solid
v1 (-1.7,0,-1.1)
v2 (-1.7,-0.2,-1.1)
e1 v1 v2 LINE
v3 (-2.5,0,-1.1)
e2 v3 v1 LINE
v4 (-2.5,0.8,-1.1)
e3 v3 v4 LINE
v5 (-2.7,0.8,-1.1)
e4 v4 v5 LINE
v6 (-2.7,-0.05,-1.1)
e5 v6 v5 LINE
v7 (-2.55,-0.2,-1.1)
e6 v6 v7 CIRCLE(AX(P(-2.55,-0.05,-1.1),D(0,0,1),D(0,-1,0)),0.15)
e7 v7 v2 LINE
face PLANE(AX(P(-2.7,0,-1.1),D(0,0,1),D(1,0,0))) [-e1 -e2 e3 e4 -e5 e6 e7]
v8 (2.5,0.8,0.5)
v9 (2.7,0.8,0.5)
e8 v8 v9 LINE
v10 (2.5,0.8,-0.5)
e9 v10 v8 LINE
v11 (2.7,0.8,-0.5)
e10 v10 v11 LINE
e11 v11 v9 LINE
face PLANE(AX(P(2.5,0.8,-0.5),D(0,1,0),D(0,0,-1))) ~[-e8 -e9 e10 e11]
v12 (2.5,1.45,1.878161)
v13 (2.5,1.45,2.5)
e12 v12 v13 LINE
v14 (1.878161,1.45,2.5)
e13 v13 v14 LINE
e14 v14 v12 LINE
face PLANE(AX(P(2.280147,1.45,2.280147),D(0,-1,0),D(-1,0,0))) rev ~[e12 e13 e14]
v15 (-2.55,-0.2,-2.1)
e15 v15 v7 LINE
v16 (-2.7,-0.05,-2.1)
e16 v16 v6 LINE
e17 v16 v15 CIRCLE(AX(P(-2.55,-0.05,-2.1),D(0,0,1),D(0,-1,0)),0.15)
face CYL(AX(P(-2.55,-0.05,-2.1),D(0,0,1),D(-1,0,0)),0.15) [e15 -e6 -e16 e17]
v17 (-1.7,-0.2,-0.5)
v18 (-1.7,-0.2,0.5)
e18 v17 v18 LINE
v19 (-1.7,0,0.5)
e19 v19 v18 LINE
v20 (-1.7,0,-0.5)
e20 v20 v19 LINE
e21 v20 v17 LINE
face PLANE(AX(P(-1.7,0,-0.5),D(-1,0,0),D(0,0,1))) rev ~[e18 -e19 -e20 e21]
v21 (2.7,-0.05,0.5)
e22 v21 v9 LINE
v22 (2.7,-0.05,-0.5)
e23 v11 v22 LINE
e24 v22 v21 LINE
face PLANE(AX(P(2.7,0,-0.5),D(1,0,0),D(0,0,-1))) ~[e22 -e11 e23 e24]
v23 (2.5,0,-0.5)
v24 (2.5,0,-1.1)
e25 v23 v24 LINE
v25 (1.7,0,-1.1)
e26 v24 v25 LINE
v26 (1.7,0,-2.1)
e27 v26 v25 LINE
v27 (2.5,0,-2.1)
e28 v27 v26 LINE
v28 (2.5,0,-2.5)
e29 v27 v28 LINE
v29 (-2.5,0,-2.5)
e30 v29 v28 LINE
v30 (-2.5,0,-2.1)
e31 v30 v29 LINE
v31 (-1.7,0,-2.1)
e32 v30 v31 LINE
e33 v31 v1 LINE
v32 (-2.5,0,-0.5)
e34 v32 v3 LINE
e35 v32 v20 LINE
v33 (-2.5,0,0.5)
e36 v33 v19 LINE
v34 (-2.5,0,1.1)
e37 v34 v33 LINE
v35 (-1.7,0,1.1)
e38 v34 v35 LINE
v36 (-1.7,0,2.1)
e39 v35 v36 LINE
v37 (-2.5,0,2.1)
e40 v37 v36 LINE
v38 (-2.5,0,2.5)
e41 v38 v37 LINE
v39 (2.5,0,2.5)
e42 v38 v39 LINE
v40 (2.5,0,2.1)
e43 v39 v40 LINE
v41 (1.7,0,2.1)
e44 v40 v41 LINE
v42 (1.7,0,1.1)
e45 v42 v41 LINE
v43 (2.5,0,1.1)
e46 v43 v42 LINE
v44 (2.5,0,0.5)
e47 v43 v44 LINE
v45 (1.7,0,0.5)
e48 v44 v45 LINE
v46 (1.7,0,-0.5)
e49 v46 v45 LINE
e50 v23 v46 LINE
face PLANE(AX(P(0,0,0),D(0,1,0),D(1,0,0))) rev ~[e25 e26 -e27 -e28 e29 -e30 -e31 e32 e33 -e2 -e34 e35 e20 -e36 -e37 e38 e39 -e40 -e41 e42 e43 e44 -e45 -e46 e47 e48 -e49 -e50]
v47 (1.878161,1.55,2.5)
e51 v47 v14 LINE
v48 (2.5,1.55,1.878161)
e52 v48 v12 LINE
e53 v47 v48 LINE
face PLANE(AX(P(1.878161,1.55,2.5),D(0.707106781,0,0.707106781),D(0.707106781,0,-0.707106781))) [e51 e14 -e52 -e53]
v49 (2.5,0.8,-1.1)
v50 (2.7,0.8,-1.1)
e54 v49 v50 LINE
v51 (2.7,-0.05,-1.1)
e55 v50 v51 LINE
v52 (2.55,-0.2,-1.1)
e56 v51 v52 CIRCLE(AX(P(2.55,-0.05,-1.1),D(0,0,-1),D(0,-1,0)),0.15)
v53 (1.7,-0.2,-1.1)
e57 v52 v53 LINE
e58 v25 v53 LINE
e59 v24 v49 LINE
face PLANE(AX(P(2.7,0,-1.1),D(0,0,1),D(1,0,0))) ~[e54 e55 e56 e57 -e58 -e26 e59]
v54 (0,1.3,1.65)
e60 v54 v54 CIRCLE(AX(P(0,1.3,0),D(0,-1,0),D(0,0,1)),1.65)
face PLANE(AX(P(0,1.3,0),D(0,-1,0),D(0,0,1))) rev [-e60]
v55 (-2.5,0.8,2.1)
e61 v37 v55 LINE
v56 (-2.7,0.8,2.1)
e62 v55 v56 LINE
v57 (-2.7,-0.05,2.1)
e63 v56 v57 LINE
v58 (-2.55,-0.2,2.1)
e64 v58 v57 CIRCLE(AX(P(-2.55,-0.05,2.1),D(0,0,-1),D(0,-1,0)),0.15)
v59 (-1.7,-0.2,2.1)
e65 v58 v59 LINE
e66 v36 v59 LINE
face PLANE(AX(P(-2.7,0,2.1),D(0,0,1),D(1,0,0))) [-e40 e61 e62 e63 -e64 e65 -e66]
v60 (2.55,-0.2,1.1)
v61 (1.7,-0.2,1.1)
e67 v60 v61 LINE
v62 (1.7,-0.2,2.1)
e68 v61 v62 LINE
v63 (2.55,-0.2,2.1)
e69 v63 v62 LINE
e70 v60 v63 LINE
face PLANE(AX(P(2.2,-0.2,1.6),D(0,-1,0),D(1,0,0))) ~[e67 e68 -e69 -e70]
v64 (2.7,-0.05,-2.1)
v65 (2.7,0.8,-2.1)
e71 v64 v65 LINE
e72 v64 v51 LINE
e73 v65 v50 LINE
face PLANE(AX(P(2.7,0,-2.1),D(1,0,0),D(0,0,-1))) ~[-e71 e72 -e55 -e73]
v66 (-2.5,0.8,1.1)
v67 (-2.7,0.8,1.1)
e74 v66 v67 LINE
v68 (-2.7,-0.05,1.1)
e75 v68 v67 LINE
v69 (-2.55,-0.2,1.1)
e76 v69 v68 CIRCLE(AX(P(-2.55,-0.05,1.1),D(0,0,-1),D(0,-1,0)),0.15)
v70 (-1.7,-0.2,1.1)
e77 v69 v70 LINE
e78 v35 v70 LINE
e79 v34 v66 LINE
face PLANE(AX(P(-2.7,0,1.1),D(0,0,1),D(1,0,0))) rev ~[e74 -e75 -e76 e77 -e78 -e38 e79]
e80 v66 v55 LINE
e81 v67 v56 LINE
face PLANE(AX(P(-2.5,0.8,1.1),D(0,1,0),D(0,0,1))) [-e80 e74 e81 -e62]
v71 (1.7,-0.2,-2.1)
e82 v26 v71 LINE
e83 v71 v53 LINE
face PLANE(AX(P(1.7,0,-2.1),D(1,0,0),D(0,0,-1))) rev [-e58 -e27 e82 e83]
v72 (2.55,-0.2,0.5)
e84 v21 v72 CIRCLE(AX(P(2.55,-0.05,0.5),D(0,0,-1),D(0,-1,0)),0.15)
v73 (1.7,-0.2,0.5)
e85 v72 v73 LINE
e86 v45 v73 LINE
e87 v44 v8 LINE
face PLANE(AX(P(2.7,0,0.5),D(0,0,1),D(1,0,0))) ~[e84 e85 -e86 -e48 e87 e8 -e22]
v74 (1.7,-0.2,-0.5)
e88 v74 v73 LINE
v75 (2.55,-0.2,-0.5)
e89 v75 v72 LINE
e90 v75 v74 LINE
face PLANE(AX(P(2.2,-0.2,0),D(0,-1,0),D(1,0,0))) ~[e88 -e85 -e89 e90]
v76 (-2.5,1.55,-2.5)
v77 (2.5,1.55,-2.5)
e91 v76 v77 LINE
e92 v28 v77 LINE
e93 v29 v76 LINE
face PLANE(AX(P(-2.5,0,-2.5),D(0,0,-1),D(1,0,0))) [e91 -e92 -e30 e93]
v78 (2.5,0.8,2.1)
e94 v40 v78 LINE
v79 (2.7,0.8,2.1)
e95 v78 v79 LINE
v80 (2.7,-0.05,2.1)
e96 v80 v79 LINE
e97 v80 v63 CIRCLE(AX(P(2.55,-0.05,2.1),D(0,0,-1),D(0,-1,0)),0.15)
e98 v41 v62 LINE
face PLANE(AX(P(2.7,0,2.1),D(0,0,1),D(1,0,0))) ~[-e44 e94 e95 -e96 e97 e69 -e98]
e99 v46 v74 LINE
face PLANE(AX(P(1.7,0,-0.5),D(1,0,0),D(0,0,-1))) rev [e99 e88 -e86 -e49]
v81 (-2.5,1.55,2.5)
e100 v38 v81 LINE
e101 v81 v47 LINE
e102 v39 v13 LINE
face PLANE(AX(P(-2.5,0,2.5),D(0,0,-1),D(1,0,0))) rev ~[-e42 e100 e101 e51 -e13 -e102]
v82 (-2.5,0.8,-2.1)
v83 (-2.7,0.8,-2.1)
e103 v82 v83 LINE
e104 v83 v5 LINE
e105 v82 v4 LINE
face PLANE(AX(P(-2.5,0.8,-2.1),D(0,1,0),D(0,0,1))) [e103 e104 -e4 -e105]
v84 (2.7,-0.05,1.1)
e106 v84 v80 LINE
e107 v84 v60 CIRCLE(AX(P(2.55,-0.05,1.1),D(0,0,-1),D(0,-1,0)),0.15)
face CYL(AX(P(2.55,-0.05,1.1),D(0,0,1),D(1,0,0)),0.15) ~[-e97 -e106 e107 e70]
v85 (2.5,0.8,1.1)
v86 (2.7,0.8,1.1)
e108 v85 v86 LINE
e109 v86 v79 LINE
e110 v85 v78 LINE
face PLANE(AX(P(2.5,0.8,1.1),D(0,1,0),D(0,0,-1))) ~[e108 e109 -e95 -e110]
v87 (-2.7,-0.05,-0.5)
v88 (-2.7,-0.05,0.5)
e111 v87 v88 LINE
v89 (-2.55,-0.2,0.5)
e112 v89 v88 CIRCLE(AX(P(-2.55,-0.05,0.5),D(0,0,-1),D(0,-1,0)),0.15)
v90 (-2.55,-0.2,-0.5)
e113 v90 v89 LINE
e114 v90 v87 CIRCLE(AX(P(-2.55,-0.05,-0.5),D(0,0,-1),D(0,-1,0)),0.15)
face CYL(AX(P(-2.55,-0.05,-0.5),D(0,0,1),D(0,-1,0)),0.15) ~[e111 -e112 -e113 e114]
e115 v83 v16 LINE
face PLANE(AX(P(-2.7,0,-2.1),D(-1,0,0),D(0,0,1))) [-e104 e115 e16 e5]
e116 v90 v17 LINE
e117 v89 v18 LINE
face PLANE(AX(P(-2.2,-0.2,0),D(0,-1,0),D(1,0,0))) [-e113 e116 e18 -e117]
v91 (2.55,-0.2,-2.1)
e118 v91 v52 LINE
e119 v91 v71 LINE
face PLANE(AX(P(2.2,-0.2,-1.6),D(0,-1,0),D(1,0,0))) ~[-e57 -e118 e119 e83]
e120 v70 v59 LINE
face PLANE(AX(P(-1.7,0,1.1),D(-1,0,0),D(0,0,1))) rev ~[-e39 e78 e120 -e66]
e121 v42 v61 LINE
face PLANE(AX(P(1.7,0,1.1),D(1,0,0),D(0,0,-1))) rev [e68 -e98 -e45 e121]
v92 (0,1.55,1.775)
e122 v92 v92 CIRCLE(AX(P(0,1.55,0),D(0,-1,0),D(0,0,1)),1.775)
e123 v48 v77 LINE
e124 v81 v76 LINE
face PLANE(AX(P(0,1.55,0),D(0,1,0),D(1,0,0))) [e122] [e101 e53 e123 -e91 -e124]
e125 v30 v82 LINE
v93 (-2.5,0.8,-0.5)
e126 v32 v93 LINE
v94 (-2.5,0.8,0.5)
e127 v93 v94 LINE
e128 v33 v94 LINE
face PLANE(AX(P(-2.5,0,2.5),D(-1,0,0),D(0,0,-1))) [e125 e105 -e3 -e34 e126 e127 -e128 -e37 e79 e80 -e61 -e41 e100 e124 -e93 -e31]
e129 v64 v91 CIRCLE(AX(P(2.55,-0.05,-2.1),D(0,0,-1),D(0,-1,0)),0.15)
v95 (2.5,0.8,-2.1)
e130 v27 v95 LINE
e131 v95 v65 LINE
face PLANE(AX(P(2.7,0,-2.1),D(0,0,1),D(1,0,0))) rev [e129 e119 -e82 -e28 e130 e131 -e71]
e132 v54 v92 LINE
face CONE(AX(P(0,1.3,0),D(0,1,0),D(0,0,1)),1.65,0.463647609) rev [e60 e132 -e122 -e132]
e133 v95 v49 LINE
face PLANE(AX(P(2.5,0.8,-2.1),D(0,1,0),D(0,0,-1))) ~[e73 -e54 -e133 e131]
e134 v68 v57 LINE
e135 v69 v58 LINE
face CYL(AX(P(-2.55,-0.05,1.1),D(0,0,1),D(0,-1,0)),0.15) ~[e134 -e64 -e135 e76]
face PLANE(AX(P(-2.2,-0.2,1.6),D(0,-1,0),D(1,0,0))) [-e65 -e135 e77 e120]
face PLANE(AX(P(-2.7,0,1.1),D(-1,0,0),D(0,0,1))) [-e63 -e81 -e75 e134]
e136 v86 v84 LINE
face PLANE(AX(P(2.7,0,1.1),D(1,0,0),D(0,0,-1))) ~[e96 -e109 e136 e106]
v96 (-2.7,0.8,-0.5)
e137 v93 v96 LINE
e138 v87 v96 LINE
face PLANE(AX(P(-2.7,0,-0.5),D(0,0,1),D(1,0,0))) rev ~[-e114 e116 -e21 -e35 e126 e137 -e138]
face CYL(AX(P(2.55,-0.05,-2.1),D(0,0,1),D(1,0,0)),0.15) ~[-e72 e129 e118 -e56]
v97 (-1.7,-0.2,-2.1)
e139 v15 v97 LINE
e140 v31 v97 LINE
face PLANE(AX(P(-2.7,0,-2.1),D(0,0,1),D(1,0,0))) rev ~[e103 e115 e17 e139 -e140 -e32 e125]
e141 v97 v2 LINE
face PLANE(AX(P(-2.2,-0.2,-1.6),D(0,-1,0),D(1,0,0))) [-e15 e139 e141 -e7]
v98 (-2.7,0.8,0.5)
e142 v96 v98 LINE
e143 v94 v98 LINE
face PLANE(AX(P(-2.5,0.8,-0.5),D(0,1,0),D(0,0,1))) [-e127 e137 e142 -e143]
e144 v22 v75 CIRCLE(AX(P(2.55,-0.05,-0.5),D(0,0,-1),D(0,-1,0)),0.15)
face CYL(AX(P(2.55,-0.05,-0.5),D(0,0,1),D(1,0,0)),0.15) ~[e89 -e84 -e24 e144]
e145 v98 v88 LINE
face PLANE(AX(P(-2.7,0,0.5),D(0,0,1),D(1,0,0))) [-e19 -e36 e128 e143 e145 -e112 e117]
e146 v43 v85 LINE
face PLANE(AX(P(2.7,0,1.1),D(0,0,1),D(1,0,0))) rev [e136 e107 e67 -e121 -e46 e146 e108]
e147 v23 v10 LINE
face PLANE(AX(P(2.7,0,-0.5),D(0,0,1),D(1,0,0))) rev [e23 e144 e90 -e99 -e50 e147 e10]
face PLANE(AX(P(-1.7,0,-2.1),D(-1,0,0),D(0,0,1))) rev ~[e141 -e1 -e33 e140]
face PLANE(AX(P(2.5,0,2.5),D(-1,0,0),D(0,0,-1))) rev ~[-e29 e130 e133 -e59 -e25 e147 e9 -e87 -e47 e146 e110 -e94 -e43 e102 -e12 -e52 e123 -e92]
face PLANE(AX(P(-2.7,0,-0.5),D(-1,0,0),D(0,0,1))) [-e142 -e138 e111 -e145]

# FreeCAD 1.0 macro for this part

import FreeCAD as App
import Part
import Sketcher


def edges_at(feature, points):
    """Names of the edges that pass closest to the given points."""
    edges = feature.Shape.Edges
    near = lambda p: min(range(len(edges)), key=lambda i: edges[i].distToShape(Part.Vertex(*p))[0])
    return sorted({f"Edge{near(p) + 1}" for p in points})

doc = App.newDocument("Part")
body = doc.addObject("PartDesign::Body", "Body")

# Sketch on XZ plane
sketch1 = body.newObject("Sketcher::SketchObject", "Sketch")
sketch1.AttachmentSupport = (doc.getObject("XZ_Plane"), [""])
sketch1.MapMode = "FlatFace"
sketch1.addGeometry(Part.LineSegment(App.Vector(-2, -2, 0), App.Vector(-2, 2, 0)), False)
sketch1.addGeometry(Part.LineSegment(App.Vector(-2, 2, 0), App.Vector(2, 2, 0)), False)
sketch1.addGeometry(Part.LineSegment(App.Vector(2, 2, 0), App.Vector(2, -2, 0)), False)
sketch1.addGeometry(Part.LineSegment(App.Vector(2, -2, 0), App.Vector(-2, -2, 0)), False)
sketch1.addConstraint(Sketcher.Constraint("Coincident", 0, 2, 1, 1))
sketch1.addConstraint(Sketcher.Constraint("Coincident", 1, 2, 2, 1))
sketch1.addConstraint(Sketcher.Constraint("Coincident", 2, 2, 3, 1))
sketch1.addConstraint(Sketcher.Constraint("Coincident", 3, 2, 0, 1))
sketch1.addConstraint(Sketcher.Constraint("Vertical", 0))
sketch1.addConstraint(Sketcher.Constraint("Horizontal", 1))
sketch1.addConstraint(Sketcher.Constraint("Vertical", 2))
sketch1.addConstraint(Sketcher.Constraint("Horizontal", 3))
sketch1.addConstraint(Sketcher.Constraint("Symmetric", 0, 2, 2, 2, -1, 1))
sketch1.addConstraint(Sketcher.Constraint("Equal", 3, 0))
sketch1.addConstraint(Sketcher.Constraint("DistanceX", 1, 1, 1, 2, 5.0))
pad1 = body.newObject("PartDesign::Pad", "Pad")
pad1.Profile = sketch1
pad1.Length = 1.55
pad1.Reversed = True

# Sketch on YZ plane
sketch2 = body.newObject("Sketcher::SketchObject", "Sketch001")
sketch2.AttachmentSupport = (doc.getObject("YZ_Plane"), [""])
sketch2.MapMode = "FlatFace"
sketch2.addGeometry(Part.LineSegment(App.Vector(1.3, 0, 0), App.Vector(1.55, 0, 0)), False)
sketch2.addGeometry(Part.LineSegment(App.Vector(1.55, 0, 0), App.Vector(1.55, 1.77, 0)), False)
sketch2.addGeometry(Part.LineSegment(App.Vector(1.55, 1.77, 0), App.Vector(1.3, 1.65, 0)), False)
sketch2.addGeometry(Part.LineSegment(App.Vector(1.3, 1.65, 0), App.Vector(1.3, 0, 0)), False)
sketch2.addConstraint(Sketcher.Constraint("Coincident", 0, 2, 1, 1))
sketch2.addConstraint(Sketcher.Constraint("Coincident", 1, 2, 2, 1))
sketch2.addConstraint(Sketcher.Constraint("Coincident", 2, 2, 3, 1))
sketch2.addConstraint(Sketcher.Constraint("Coincident", 3, 2, 0, 1))
sketch2.addConstraint(Sketcher.Constraint("Horizontal", 0))
sketch2.addConstraint(Sketcher.Constraint("Vertical", 1))
sketch2.addConstraint(Sketcher.Constraint("Vertical", 3))
sketch2.addConstraint(Sketcher.Constraint("PointOnObject", 0, 2, -1))
sketch2.addConstraint(Sketcher.Constraint("DistanceX", 0, 1, 0, 2, 0.25))
sketch2.addConstraint(Sketcher.Constraint("DistanceY", 3, 2, 3, 1, 1.65))
sketch2.addConstraint(Sketcher.Constraint("DistanceX", -1, 1, 2, 2, 1.3))
sketch2.addConstraint(Sketcher.Constraint("DistanceY", 1, 1, 1, 2, 1.775))
groove = body.newObject("PartDesign::Groove", "Groove")
groove.Profile = sketch2
groove.ReferenceAxis = (sketch2, ["H_Axis"])
groove.Angle = 360

# Sketch on YZ plane
sketch3 = body.newObject("Sketcher::SketchObject", "Sketch002")
sketch3.AttachmentSupport = (doc.getObject("YZ_Plane"), [""])
sketch3.MapMode = "FlatFace"
sketch3.AttachmentOffset = App.Placement(App.Vector(0, 0, -2.5), App.Rotation())
sketch3.addGeometry(Part.LineSegment(App.Vector(0.8, -0.5, 0), App.Vector(0, -0.5, 0)), False)
sketch3.addGeometry(Part.LineSegment(App.Vector(0, -0.5, 0), App.Vector(0, 0.5, 0)), False)
sketch3.addGeometry(Part.LineSegment(App.Vector(0, 0.5, 0), App.Vector(0.8, 0.5, 0)), False)
sketch3.addGeometry(Part.LineSegment(App.Vector(0.8, 0.5, 0), App.Vector(0.8, -0.5, 0)), False)
sketch3.addGeometry(Part.LineSegment(App.Vector(0.8, 1.1, 0), App.Vector(0, 1.1, 0)), False)
sketch3.addGeometry(Part.LineSegment(App.Vector(0, 1.1, 0), App.Vector(0, 2.1, 0)), False)
sketch3.addGeometry(Part.LineSegment(App.Vector(0, 2.1, 0), App.Vector(0.8, 2.1, 0)), False)
sketch3.addGeometry(Part.LineSegment(App.Vector(0.8, 2.1, 0), App.Vector(0.8, 1.1, 0)), False)
sketch3.addGeometry(Part.LineSegment(App.Vector(0.8, -2.1, 0), App.Vector(0, -2.1, 0)), False)
sketch3.addGeometry(Part.LineSegment(App.Vector(0, -2.1, 0), App.Vector(0, -1.1, 0)), False)
sketch3.addGeometry(Part.LineSegment(App.Vector(0, -1.1, 0), App.Vector(0.8, -1.1, 0)), False)
sketch3.addGeometry(Part.LineSegment(App.Vector(0.8, -1.1, 0), App.Vector(0.8, -2.1, 0)), False)
sketch3.addConstraint(Sketcher.Constraint("Coincident", 0, 2, 1, 1))
sketch3.addConstraint(Sketcher.Constraint("Coincident", 1, 2, 2, 1))
sketch3.addConstraint(Sketcher.Constraint("Coincident", 2, 2, 3, 1))
sketch3.addConstraint(Sketcher.Constraint("Coincident", 3, 2, 0, 1))
sketch3.addConstraint(Sketcher.Constraint("Coincident", 4, 2, 5, 1))
sketch3.addConstraint(Sketcher.Constraint("Coincident", 5, 2, 6, 1))
sketch3.addConstraint(Sketcher.Constraint("Coincident", 6, 2, 7, 1))
sketch3.addConstraint(Sketcher.Constraint("Coincident", 7, 2, 4, 1))
sketch3.addConstraint(Sketcher.Constraint("Coincident", 8, 2, 9, 1))
sketch3.addConstraint(Sketcher.Constraint("Coincident", 9, 2, 10, 1))
sketch3.addConstraint(Sketcher.Constraint("Coincident", 10, 2, 11, 1))
sketch3.addConstraint(Sketcher.Constraint("Coincident", 11, 2, 8, 1))
sketch3.addConstraint(Sketcher.Constraint("Horizontal", 0))
sketch3.addConstraint(Sketcher.Constraint("Vertical", 1))
sketch3.addConstraint(Sketcher.Constraint("Horizontal", 2))
sketch3.addConstraint(Sketcher.Constraint("Vertical", 3))
sketch3.addConstraint(Sketcher.Constraint("Horizontal", 4))
sketch3.addConstraint(Sketcher.Constraint("Vertical", 5))
sketch3.addConstraint(Sketcher.Constraint("Horizontal", 6))
sketch3.addConstraint(Sketcher.Constraint("Vertical", 7))
sketch3.addConstraint(Sketcher.Constraint("Horizontal", 8))
sketch3.addConstraint(Sketcher.Constraint("Vertical", 9))
sketch3.addConstraint(Sketcher.Constraint("Horizontal", 10))
sketch3.addConstraint(Sketcher.Constraint("Vertical", 11))
sketch3.addConstraint(Sketcher.Constraint("Symmetric", 0, 2, 1, 2, -1, 1))
sketch3.addConstraint(Sketcher.Constraint("Symmetric", 5, 2, 8, 2, -1, 1))
sketch3.addConstraint(Sketcher.Constraint("Symmetric", 4, 2, 9, 2, -1))
sketch3.addConstraint(Sketcher.Constraint("Vertical", 3, 2, 6, 2))
sketch3.addConstraint(Sketcher.Constraint("Vertical", 7, 2, 10, 2))
sketch3.addConstraint(Sketcher.Constraint("Equal", 3, 5))
sketch3.addConstraint(Sketcher.Constraint("DistanceY", 1, 1, 1, 2, 1.0))
sketch3.addConstraint(Sketcher.Constraint("DistanceX", 0, 2, 0, 1, 0.8))
sketch3.addConstraint(Sketcher.Constraint("DistanceY", -1, 1, 4, 2, 1.1))
pad2 = body.newObject("PartDesign::Pad", "Pad001")
pad2.Profile = sketch3
pad2.Length = 0.2
pad2.Reversed = True

# Sketch on XZ plane
sketch4 = body.newObject("Sketcher::SketchObject", "Sketch003")
sketch4.AttachmentSupport = (doc.getObject("XZ_Plane"), [""])
sketch4.MapMode = "FlatFace"
sketch4.addGeometry(Part.LineSegment(App.Vector(-2.7, -1.1, 0), App.Vector(-2.7, -2.1, 0)), False)
sketch4.addGeometry(Part.LineSegment(App.Vector(-2.7, -2.1, 0), App.Vector(-1.7, -2.1, 0)), False)
sketch4.addGeometry(Part.LineSegment(App.Vector(-1.7, -2.1, 0), App.Vector(-1.7, -1.1, 0)), False)
sketch4.addGeometry(Part.LineSegment(App.Vector(-1.7, -1.1, 0), App.Vector(-2.7, -1.1, 0)), False)
sketch4.addGeometry(Part.LineSegment(App.Vector(-2.7, 0.5, 0), App.Vector(-2.7, -0.5, 0)), False)
sketch4.addGeometry(Part.LineSegment(App.Vector(-2.7, -0.5, 0), App.Vector(-1.7, -0.5, 0)), False)
sketch4.addGeometry(Part.LineSegment(App.Vector(-1.7, -0.5, 0), App.Vector(-1.7, 0.5, 0)), False)
sketch4.addGeometry(Part.LineSegment(App.Vector(-1.7, 0.5, 0), App.Vector(-2.7, 0.5, 0)), False)
sketch4.addGeometry(Part.LineSegment(App.Vector(-2.7, 2.1, 0), App.Vector(-2.7, 1.1, 0)), False)
sketch4.addGeometry(Part.LineSegment(App.Vector(-2.7, 1.1, 0), App.Vector(-1.7, 1.1, 0)), False)
sketch4.addGeometry(Part.LineSegment(App.Vector(-1.7, 1.1, 0), App.Vector(-1.7, 2.1, 0)), False)
sketch4.addGeometry(Part.LineSegment(App.Vector(-1.7, 2.1, 0), App.Vector(-2.7, 2.1, 0)), False)
sketch4.addConstraint(Sketcher.Constraint("Coincident", 0, 2, 1, 1))
sketch4.addConstraint(Sketcher.Constraint("Coincident", 1, 2, 2, 1))
sketch4.addConstraint(Sketcher.Constraint("Coincident", 2, 2, 3, 1))
sketch4.addConstraint(Sketcher.Constraint("Coincident", 3, 2, 0, 1))
sketch4.addConstraint(Sketcher.Constraint("Coincident", 4, 2, 5, 1))
sketch4.addConstraint(Sketcher.Constraint("Coincident", 5, 2, 6, 1))
sketch4.addConstraint(Sketcher.Constraint("Coincident", 6, 2, 7, 1))
sketch4.addConstraint(Sketcher.Constraint("Coincident", 7, 2, 4, 1))
sketch4.addConstraint(Sketcher.Constraint("Coincident", 8, 2, 9, 1))
sketch4.addConstraint(Sketcher.Constraint("Coincident", 9, 2, 10, 1))
sketch4.addConstraint(Sketcher.Constraint("Coincident", 10, 2, 11, 1))
sketch4.addConstraint(Sketcher.Constraint("Coincident", 11, 2, 8, 1))
sketch4.addConstraint(Sketcher.Constraint("Vertical", 0))
sketch4.addConstraint(Sketcher.Constraint("Horizontal", 1))
sketch4.addConstraint(Sketcher.Constraint("Vertical", 2))
sketch4.addConstraint(Sketcher.Constraint("Horizontal", 3))
sketch4.addConstraint(Sketcher.Constraint("Vertical", 4))
sketch4.addConstraint(Sketcher.Constraint("Horizontal", 5))
sketch4.addConstraint(Sketcher.Constraint("Vertical", 6))
sketch4.addConstraint(Sketcher.Constraint("Horizontal", 7))
sketch4.addConstraint(Sketcher.Constraint("Vertical", 8))
sketch4.addConstraint(Sketcher.Constraint("Horizontal", 9))
sketch4.addConstraint(Sketcher.Constraint("Vertical", 10))
sketch4.addConstraint(Sketcher.Constraint("Horizontal", 11))
sketch4.addConstraint(Sketcher.Constraint("Symmetric", 3, 2, 8, 2, -1))
sketch4.addConstraint(Sketcher.Constraint("Symmetric", 1, 2, 10, 2, -1))
sketch4.addConstraint(Sketcher.Constraint("Vertical", 3, 2, 4, 2))
sketch4.addConstraint(Sketcher.Constraint("Vertical", 2, 2, 5, 2))
sketch4.addConstraint(Sketcher.Constraint("Equal", 11, 0))
sketch4.addConstraint(Sketcher.Constraint("Equal", 2, 4))
sketch4.addConstraint(Sketcher.Constraint("DistanceX", 1, 1, 1, 2, 1.0))
sketch4.addConstraint(Sketcher.Constraint("DistanceX", 0, 2, -1, 1, 2.7))
sketch4.addConstraint(Sketcher.Constraint("DistanceY", 0, 2, -1, 1, 2.1))
sketch4.addConstraint(Sketcher.Constraint("DistanceY", 4, 2, -1, 1, 0.5))
pad3 = body.newObject("PartDesign::Pad", "Pad002")
pad3.Profile = sketch4
pad3.Length = 0.2
doc.recompute()

fillet = body.newObject("PartDesign::Fillet", "Fillet")
fillet.Base = (pad3, edges_at(pad3, [(-2.7, -0.2, -1.6), (-2.7, -0.2, 0), (-2.7, -0.2, 1.6)]))
fillet.Radius = 0.15
doc.recompute()

mirrored = body.newObject("PartDesign::Mirrored", "Mirrored")
mirrored.Originals = [pad2, pad3]
mirrored.MirrorPlane = (doc.getObject("YZ_Plane"), [""])
body.Tip = mirrored
doc.recompute()

fillet2 = body.newObject("PartDesign::Fillet", "Fillet001")
fillet2.Base = (mirrored, edges_at(mirrored, [(2.7, -0.2, -1.6), (2.7, -0.2, 0), (2.7, -0.2, 1.6)]))
fillet2.Radius = 0.15

# Sketch on XZ plane
sketch5 = body.newObject("Sketcher::SketchObject", "Sketch004")
sketch5.AttachmentSupport = (doc.getObject("XZ_Plane"), [""])
sketch5.MapMode = "FlatFace"
sketch5.AttachmentOffset = App.Placement(App.Vector(0, 0, -1.55), App.Rotation())
sketch5.addGeometry(Part.LineSegment(App.Vector(2.5, 1.9, 0), App.Vector(1.9, 2.5, 0)), False)
sketch5.addGeometry(Part.LineSegment(App.Vector(1.9, 2.5, 0), App.Vector(2.5, 2.5, 0)), False)
sketch5.addGeometry(Part.LineSegment(App.Vector(2.5, 2.5, 0), App.Vector(2.5, 1.9, 0)), False)
sketch5.addConstraint(Sketcher.Constraint("Coincident", 0, 2, 1, 1))
sketch5.addConstraint(Sketcher.Constraint("Coincident", 1, 2, 2, 1))
sketch5.addConstraint(Sketcher.Constraint("Coincident", 2, 2, 0, 1))
sketch5.addConstraint(Sketcher.Constraint("Horizontal", 1))
sketch5.addConstraint(Sketcher.Constraint("Vertical", 2))
sketch5.addConstraint(Sketcher.Constraint("Equal", 1, 2))
sketch5.addConstraint(Sketcher.Constraint("DistanceY", -1, 1, 0, 2, 2.5))
sketch5.addConstraint(Sketcher.Constraint("DistanceX", -1, 1, 1, 2, 2.5))
sketch5.addConstraint(Sketcher.Constraint("DistanceX", 1, 1, 1, 2, 0.621839))
pocket1 = body.newObject("PartDesign::Pocket", "Pocket")
pocket1.Profile = sketch5
pocket1.Length = 0.1
pocket1.Reversed = True

doc.recompute()
